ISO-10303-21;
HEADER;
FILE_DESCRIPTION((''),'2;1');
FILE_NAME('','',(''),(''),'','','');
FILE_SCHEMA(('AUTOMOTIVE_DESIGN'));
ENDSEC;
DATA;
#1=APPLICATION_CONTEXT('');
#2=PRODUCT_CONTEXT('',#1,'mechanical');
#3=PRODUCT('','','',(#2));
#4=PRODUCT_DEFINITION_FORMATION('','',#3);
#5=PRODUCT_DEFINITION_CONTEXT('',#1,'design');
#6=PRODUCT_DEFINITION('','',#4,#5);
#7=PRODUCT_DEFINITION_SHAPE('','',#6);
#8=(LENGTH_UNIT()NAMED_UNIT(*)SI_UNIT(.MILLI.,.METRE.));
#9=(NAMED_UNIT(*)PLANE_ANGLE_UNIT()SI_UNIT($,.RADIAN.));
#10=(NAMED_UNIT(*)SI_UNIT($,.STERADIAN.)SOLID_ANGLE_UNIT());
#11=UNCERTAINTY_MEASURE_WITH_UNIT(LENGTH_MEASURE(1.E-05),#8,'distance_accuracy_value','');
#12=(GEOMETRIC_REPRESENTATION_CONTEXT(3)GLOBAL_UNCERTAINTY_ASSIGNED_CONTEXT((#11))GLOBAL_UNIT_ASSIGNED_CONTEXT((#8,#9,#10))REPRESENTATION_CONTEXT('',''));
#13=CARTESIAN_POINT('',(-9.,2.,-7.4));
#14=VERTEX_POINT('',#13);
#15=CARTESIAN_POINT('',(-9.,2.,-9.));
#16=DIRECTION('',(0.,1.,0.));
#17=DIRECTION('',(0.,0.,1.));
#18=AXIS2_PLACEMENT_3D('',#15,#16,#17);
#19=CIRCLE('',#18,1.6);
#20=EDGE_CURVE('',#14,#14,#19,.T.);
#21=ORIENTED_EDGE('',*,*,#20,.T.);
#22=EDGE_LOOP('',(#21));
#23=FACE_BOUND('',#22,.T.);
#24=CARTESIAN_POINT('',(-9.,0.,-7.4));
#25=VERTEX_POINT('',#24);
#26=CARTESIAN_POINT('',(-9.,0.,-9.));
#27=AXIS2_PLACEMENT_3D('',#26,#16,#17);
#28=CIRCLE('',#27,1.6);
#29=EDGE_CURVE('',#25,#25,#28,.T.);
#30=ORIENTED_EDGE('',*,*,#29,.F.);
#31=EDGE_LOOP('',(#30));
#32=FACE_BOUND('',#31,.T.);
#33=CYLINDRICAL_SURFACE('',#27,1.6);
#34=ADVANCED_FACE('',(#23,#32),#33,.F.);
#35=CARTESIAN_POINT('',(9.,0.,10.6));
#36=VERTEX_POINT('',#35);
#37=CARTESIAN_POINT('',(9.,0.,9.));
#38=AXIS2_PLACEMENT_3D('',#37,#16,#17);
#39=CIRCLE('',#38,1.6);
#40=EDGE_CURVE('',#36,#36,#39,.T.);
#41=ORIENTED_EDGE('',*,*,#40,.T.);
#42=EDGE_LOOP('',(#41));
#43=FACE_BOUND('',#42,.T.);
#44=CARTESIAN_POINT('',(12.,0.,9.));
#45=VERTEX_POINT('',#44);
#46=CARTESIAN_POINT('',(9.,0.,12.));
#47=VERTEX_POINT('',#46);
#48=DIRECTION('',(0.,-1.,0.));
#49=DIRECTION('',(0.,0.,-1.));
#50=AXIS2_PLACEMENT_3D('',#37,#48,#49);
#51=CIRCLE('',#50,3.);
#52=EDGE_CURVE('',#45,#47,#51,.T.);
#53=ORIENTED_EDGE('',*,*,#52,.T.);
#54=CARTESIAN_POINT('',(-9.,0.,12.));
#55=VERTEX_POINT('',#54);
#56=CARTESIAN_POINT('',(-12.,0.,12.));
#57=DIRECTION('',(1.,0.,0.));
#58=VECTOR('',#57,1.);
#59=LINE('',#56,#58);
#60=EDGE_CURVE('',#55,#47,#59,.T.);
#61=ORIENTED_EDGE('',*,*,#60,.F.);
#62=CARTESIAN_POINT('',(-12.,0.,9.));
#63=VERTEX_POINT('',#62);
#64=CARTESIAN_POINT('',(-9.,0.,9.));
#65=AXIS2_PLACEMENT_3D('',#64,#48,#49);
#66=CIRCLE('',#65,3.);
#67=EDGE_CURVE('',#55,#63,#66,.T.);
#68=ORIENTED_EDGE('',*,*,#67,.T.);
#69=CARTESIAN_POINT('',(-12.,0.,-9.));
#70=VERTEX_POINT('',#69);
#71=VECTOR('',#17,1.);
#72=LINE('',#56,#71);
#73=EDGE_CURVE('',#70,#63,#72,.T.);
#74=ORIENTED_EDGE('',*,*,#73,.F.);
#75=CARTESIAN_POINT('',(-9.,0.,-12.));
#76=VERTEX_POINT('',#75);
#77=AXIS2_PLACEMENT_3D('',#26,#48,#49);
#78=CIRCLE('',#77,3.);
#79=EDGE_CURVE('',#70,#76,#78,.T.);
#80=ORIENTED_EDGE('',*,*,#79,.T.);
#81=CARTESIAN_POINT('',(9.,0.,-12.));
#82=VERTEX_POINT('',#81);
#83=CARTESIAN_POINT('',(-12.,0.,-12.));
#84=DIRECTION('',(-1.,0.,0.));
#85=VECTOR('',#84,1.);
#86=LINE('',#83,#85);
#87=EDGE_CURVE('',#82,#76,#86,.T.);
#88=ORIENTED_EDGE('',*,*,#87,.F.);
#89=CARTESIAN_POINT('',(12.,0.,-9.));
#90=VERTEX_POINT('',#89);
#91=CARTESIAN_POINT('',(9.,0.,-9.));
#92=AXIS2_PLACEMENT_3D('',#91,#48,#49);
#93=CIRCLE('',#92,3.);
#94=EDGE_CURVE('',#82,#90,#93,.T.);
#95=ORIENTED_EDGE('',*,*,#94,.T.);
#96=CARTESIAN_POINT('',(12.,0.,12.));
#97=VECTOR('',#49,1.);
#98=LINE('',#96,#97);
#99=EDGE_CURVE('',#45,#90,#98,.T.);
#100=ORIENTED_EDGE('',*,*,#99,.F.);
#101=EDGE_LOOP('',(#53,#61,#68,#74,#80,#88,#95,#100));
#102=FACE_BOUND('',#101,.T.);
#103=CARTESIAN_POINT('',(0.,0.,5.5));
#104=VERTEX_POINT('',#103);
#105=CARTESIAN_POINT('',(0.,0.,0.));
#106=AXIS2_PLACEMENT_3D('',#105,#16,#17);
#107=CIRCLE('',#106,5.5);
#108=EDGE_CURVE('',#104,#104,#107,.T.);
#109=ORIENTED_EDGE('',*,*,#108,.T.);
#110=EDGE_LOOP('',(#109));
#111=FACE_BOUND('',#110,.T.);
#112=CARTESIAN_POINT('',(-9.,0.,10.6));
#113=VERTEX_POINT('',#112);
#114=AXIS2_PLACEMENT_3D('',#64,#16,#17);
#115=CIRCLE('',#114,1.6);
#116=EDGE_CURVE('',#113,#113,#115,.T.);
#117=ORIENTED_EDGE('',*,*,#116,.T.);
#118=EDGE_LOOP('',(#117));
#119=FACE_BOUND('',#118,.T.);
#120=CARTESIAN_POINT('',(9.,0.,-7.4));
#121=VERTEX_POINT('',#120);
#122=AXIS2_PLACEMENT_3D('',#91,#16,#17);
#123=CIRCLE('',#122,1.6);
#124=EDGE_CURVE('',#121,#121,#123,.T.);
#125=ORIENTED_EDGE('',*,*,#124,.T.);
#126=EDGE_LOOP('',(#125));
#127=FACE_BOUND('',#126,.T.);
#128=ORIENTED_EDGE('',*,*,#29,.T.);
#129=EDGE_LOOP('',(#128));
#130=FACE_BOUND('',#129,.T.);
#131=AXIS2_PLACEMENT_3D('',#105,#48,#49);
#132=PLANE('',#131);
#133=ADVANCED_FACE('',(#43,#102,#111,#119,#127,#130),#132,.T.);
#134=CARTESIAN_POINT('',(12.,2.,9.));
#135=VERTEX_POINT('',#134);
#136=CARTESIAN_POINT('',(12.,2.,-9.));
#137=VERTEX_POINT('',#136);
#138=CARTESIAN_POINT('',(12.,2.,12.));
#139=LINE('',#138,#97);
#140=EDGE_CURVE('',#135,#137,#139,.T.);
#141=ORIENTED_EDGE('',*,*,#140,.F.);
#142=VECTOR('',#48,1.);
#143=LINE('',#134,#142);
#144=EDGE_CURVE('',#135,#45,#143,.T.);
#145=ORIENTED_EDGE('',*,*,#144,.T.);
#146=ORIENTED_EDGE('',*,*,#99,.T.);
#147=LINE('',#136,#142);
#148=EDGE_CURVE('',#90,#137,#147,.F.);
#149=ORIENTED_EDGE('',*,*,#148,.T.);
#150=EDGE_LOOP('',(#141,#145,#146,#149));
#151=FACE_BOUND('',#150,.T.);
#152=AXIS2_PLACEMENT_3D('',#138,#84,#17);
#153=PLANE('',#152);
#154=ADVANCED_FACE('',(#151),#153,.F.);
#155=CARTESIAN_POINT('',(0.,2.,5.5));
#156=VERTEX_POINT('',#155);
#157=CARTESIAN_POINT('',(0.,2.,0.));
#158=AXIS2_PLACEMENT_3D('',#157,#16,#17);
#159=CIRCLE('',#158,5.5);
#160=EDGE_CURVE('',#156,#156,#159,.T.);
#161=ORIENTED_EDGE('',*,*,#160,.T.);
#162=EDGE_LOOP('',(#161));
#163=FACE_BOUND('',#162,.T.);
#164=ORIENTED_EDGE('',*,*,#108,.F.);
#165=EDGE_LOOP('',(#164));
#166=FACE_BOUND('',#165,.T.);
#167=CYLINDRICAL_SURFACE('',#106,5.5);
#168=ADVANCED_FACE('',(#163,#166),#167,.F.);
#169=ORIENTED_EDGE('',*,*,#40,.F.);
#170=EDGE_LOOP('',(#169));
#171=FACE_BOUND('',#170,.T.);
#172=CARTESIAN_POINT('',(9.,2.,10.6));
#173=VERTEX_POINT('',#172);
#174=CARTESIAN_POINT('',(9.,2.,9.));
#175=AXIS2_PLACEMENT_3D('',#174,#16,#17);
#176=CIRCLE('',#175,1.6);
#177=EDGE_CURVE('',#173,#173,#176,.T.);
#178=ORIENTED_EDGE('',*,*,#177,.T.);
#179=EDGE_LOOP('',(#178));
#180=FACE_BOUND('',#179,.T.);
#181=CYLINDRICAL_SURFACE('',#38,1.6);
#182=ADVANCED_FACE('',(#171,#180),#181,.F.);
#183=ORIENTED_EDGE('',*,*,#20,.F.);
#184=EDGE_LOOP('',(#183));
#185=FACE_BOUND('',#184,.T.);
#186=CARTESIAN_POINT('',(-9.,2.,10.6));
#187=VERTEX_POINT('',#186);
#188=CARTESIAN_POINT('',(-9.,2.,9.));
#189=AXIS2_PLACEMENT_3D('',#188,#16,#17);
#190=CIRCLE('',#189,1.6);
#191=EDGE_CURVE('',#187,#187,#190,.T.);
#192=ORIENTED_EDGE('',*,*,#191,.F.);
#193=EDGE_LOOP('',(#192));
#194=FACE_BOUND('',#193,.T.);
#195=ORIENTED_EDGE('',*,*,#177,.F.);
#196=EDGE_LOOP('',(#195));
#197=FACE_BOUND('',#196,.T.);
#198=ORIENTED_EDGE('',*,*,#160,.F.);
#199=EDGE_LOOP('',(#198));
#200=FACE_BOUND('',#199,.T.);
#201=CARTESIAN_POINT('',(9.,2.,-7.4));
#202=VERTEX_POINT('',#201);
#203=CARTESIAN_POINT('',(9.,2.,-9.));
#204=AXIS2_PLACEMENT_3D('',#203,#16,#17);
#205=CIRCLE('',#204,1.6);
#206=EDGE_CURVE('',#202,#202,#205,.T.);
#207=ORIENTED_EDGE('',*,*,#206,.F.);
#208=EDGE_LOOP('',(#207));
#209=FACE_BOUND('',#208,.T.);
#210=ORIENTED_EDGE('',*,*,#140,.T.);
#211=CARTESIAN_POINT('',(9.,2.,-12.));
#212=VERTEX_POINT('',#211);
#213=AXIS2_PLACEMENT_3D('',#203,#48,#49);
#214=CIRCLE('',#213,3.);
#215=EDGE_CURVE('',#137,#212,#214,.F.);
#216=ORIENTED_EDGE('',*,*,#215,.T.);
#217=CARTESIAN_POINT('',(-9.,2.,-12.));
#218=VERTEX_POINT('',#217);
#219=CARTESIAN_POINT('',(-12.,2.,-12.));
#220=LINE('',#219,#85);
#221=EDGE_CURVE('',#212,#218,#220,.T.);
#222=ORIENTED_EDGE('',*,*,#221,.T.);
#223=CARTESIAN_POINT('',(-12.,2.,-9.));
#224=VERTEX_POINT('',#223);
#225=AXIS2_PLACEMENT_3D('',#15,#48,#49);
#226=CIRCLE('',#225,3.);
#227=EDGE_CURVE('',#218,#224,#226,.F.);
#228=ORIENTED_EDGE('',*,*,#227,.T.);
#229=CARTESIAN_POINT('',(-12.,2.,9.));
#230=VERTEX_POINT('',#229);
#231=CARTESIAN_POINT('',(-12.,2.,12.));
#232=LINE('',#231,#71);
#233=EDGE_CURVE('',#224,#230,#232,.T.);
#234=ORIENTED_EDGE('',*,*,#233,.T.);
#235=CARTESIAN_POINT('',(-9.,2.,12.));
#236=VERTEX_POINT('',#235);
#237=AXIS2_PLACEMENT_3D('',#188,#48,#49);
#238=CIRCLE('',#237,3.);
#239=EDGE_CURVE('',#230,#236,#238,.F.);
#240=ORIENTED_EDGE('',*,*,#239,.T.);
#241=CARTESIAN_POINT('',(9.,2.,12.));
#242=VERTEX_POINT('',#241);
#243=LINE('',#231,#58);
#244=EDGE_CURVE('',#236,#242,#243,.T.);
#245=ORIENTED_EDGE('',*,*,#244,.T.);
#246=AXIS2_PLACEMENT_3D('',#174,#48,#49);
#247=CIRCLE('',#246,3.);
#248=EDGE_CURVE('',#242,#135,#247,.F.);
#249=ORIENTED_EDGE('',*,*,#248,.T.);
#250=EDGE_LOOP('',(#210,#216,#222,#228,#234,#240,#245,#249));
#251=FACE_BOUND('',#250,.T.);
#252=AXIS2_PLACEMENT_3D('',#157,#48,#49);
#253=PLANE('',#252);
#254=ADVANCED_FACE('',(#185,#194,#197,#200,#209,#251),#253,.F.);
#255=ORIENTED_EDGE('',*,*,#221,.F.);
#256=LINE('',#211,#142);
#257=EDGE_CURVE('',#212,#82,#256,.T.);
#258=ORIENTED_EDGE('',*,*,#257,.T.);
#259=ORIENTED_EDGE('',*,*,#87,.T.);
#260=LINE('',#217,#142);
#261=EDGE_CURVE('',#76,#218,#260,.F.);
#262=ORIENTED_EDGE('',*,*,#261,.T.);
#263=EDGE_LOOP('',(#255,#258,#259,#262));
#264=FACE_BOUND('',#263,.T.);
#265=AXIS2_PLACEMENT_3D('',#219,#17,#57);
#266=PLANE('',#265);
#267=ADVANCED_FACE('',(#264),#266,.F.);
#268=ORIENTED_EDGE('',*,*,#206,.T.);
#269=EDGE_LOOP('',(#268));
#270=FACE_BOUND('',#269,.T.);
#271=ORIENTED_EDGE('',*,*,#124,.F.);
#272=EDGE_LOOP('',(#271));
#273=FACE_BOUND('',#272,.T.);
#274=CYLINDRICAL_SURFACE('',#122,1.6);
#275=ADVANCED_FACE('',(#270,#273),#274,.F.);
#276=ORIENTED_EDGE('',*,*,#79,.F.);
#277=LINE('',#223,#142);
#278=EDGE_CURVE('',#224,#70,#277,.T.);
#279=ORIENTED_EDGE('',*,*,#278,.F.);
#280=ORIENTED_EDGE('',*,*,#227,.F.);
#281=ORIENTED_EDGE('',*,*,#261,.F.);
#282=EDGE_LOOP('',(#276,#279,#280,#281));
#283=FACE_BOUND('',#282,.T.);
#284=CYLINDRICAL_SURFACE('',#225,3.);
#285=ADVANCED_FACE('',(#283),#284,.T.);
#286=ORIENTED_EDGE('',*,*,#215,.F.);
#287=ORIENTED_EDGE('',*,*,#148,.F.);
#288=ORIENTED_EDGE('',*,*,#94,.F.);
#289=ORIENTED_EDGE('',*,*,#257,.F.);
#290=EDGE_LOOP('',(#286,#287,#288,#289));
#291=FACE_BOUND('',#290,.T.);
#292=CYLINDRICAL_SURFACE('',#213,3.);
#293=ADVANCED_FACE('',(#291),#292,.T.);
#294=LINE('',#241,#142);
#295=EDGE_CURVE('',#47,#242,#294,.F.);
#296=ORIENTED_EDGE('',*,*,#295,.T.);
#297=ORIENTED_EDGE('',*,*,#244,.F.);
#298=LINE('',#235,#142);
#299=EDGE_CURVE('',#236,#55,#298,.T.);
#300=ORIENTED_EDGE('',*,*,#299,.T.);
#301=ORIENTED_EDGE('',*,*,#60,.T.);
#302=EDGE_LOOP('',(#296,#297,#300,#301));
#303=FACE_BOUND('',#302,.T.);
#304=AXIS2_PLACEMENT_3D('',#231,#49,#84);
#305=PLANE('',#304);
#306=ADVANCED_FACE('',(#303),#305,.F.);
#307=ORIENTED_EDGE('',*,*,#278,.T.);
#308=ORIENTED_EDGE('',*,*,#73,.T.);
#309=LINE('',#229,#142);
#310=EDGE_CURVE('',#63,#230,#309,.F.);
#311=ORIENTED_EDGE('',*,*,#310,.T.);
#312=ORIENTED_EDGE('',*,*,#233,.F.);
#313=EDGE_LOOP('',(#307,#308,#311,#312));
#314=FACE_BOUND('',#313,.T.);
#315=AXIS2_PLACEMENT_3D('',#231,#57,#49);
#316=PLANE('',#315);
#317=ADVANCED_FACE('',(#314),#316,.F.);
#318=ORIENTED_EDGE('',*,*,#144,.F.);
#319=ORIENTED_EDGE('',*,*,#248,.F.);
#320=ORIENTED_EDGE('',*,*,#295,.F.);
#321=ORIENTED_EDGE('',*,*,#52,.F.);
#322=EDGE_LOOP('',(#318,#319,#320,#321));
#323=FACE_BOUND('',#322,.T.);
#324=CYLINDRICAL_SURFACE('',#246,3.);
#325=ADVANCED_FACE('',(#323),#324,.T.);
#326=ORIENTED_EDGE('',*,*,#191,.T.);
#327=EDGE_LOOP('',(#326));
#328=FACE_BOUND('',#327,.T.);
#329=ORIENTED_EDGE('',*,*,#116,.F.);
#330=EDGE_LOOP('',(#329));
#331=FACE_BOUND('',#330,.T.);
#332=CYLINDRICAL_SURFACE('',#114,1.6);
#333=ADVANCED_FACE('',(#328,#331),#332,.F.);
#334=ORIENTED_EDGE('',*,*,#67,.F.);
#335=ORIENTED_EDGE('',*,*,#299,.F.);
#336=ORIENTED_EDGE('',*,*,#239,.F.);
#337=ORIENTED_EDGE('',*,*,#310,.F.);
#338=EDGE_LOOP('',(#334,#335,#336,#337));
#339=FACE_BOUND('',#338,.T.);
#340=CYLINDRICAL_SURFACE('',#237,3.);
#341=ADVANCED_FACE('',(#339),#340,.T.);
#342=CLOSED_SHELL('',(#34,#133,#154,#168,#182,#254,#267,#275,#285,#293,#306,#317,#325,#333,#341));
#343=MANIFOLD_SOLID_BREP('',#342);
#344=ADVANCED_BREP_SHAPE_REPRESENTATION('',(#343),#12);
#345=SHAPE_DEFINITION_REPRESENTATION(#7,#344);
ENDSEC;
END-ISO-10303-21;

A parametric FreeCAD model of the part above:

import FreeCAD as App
import Part
import Sketcher
from FreeCAD import Vector


def edges_at(feature, points):
    """Names of the edges that pass closest to the given points."""
    edges = feature.Shape.Edges
    near = lambda p: min(range(len(edges)), key=lambda i: edges[i].distToShape(Part.Vertex(*p))[0])
    return sorted({f"Edge{near(p) + 1}" for p in points})

doc = App.newDocument("Part")
body = doc.addObject("PartDesign::Body", "Body")

sketch1 = body.newObject("Sketcher::SketchObject", "Sketch")
sketch1.AttachmentSupport = (doc.getObject("XZ_Plane"), [""])
sketch1.MapMode = "FlatFace"
sketch1.addGeometry([
    Part.LineSegment(Vector(-12, -12, 0), Vector(-12, 12, 0)),
    Part.LineSegment(Vector(-12, 12, 0), Vector(12, 12, 0)),
    Part.LineSegment(Vector(12, 12, 0), Vector(12, -12, 0)),
    Part.LineSegment(Vector(12, -12, 0), Vector(-12, -12, 0)),
], False)
sketch1.addConstraint([
    Sketcher.Constraint("Coincident", 0, 2, 1, 1),
    Sketcher.Constraint("Coincident", 1, 2, 2, 1),
    Sketcher.Constraint("Coincident", 2, 2, 3, 1),
    Sketcher.Constraint("Coincident", 3, 2, 0, 1),
    Sketcher.Constraint("Vertical", 0),
    Sketcher.Constraint("Horizontal", 1),
    Sketcher.Constraint("Vertical", 2),
    Sketcher.Constraint("Horizontal", 3),
    Sketcher.Constraint("Symmetric", 0, 2, 2, 2, -1, 1),
    Sketcher.Constraint("Equal", 3, 0),
    Sketcher.Constraint("DistanceX", 1, 1, 1, 2, 24.0),
])
pad1 = body.newObject("PartDesign::Pad", "Pad")
pad1.Profile = sketch1
pad1.Length = 2
pad1.Reversed = True
doc.recompute()

fillet = body.newObject("PartDesign::Fillet", "Fillet")
fillet.Base = (pad1, edges_at(pad1, [
    (12, 1, 12),
    (-12, 1, 12),
    (-12, 1, -12),
    (12, 1, -12),
]))
fillet.Radius = 3

sketch2 = body.newObject("Sketcher::SketchObject", "Sketch001")
sketch2.AttachmentSupport = (doc.getObject("XZ_Plane"), [""])
sketch2.MapMode = "FlatFace"
sketch2.AttachmentOffset = App.Placement(Vector(0, 0, -2), App.Rotation())
sketch2.addGeometry([
    Part.Circle(Vector(-9, -9, 0), Vector(0, 0, 1), 1.6),
    Part.Circle(Vector(9, -9, 0), Vector(0, 0, 1), 1.6),
    Part.Circle(Vector(9, 9, 0), Vector(0, 0, 1), 1.6),
    Part.Circle(Vector(-9, 9, 0), Vector(0, 0, 1), 1.6),
], False)
sketch2.addConstraint([
    Sketcher.Constraint("Equal", 0, 1),
    Sketcher.Constraint("Equal", 1, 2),
    Sketcher.Constraint("Equal", 2, 3),
    Sketcher.Constraint("Symmetric", 0, 3, 2, 3, -1, 1),
    Sketcher.Constraint("Symmetric", 1, 3, 3, 3, -1, 1),
    Sketcher.Constraint("Symmetric", 0, 3, 1, 3, -2),
    Sketcher.Constraint("Diameter", 0, 3.2),
    Sketcher.Constraint("DistanceX", 0, 3, -1, 1, 9.0),
    Sketcher.Constraint("DistanceY", 0, 3, -1, 1, 9.0),
])
pocket1 = body.newObject("PartDesign::Pocket", "Pocket")
pocket1.Profile = sketch2
pocket1.Length = 2
pocket1.Reversed = True

sketch3 = body.newObject("Sketcher::SketchObject", "Sketch002")
sketch3.AttachmentSupport = (doc.getObject("XZ_Plane"), [""])
sketch3.MapMode = "FlatFace"
sketch3.AttachmentOffset = App.Placement(Vector(0, 0, -2), App.Rotation())
sketch3.addGeometry(Part.Circle(Vector(0, 0, 0), Vector(0, 0, 1), 6), False)
sketch3.addConstraint([
    Sketcher.Constraint("Coincident", 0, 3, -1, 1),
    Sketcher.Constraint("Diameter", 0, 11.0),
])
pocket2 = body.newObject("PartDesign::Pocket", "Pocket001")
pocket2.Profile = sketch3
pocket2.Length = 2
pocket2.Reversed = True

doc.recompute()
